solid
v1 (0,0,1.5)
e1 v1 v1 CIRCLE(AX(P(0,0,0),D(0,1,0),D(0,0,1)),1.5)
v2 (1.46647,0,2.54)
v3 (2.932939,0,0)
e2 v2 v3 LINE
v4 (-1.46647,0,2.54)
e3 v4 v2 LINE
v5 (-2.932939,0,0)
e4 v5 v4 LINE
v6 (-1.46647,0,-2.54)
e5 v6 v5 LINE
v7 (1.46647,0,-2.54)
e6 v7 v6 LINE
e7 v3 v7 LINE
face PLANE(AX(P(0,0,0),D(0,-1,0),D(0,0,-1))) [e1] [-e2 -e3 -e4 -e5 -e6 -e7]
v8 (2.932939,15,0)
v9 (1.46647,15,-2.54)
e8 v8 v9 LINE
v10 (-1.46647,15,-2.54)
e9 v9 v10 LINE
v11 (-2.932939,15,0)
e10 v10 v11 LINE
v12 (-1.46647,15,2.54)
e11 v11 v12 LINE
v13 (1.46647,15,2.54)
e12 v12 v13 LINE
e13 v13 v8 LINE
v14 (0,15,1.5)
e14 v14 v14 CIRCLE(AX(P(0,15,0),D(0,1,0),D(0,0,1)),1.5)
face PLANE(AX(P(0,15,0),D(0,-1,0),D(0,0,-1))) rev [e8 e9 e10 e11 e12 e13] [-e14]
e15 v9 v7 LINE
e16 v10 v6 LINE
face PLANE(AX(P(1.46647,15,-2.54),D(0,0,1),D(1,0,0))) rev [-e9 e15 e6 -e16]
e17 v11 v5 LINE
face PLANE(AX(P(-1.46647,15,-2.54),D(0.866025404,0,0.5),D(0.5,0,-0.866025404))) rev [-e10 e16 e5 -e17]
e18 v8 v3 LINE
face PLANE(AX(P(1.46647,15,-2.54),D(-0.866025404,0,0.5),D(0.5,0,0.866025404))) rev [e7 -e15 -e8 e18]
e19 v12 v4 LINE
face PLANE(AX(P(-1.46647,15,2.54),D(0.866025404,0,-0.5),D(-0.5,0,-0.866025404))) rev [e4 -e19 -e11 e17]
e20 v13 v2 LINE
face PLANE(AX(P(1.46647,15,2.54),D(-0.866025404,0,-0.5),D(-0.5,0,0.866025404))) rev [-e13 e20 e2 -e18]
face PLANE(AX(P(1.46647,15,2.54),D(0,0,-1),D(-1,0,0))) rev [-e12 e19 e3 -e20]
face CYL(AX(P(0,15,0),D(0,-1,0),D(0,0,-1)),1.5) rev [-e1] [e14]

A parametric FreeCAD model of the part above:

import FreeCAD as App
import Part
import Sketcher
from FreeCAD import Vector
Q = App.Units.Quantity


def add_polygon(sketch, points):
    """Adds a closed chain of lines whose ends are joined by coincident constraints."""
    first, n = sketch.GeometryCount, len(points)
    for a, b in zip(points, points[1:] + points[:1]):
        sketch.addGeometry(Part.LineSegment(App.Vector(*a, 0), App.Vector(*b, 0)), False)
    for i in range(n):
        sketch.addConstraint(Sketcher.Constraint("Coincident", first + i, 2, first + (i + 1) % n, 1))

doc = App.newDocument("Part")
params = doc.addObject("Spreadsheet::Sheet", "Params")
for row, (alias, value) in enumerate([
    ("sketch1_diameter", "3 mm"),
    ("pad1_length", "15 mm"),
], start=1):
    params.set(f"A{row}", alias)
    params.set(f"B{row}", "=" + value)
    params.setAlias(f"B{row}", alias)

body = doc.addObject("PartDesign::Body", "Body")

sketch1 = body.newObject("Sketcher::SketchObject", "Sketch")
sketch1.AttachmentSupport = (doc.getObject("XZ_Plane"), [""])
sketch1.MapMode = "FlatFace"
add_polygon(sketch1, [(1.5, -2.5), (-1.5, -2.5), (-2.9, 0), (-1.5, 2.5), (1.5, 2.5), (2.9, 0)])
sketch1.addGeometry(Part.Circle(Vector(0, 0, 0), Vector(0, 0, 1), 1.5), False)
sketch1.addConstraint([
    Sketcher.Constraint("Horizontal", 0),
    Sketcher.Constraint("Horizontal", 3),
    Sketcher.Constraint("Coincident", 6, 3, -1, 1),
    Sketcher.Constraint("Symmetric", 0, 2, 3, 2, -1, 1),
    Sketcher.Constraint("Symmetric", 1, 2, 4, 2, -1, 1),
    Sketcher.Constraint("PointOnObject", 1, 2, -1),
    Sketcher.Constraint("Parallel", 2, 5),
    Sketcher.Constraint("Vertical", 0, 2, 2, 2),
    Sketcher.Constraint("Diameter", 6, 3.0),
    Sketcher.Constraint("Angle", 1, Q("120 deg")),
    Sketcher.Constraint("DistanceY", 0, 2, -1, 1, 2.54),
    Sketcher.Constraint("DistanceX", 0, 2, 0, 1, 2.932939),
])
sketch1.setExpression("Constraints[14]", "Params.sketch1_diameter")
pad1 = body.newObject("PartDesign::Pad", "Pad")
pad1.Profile = sketch1
pad1.setExpression("Length", "Params.pad1_length")
pad1.Reversed = True

doc.recompute()
